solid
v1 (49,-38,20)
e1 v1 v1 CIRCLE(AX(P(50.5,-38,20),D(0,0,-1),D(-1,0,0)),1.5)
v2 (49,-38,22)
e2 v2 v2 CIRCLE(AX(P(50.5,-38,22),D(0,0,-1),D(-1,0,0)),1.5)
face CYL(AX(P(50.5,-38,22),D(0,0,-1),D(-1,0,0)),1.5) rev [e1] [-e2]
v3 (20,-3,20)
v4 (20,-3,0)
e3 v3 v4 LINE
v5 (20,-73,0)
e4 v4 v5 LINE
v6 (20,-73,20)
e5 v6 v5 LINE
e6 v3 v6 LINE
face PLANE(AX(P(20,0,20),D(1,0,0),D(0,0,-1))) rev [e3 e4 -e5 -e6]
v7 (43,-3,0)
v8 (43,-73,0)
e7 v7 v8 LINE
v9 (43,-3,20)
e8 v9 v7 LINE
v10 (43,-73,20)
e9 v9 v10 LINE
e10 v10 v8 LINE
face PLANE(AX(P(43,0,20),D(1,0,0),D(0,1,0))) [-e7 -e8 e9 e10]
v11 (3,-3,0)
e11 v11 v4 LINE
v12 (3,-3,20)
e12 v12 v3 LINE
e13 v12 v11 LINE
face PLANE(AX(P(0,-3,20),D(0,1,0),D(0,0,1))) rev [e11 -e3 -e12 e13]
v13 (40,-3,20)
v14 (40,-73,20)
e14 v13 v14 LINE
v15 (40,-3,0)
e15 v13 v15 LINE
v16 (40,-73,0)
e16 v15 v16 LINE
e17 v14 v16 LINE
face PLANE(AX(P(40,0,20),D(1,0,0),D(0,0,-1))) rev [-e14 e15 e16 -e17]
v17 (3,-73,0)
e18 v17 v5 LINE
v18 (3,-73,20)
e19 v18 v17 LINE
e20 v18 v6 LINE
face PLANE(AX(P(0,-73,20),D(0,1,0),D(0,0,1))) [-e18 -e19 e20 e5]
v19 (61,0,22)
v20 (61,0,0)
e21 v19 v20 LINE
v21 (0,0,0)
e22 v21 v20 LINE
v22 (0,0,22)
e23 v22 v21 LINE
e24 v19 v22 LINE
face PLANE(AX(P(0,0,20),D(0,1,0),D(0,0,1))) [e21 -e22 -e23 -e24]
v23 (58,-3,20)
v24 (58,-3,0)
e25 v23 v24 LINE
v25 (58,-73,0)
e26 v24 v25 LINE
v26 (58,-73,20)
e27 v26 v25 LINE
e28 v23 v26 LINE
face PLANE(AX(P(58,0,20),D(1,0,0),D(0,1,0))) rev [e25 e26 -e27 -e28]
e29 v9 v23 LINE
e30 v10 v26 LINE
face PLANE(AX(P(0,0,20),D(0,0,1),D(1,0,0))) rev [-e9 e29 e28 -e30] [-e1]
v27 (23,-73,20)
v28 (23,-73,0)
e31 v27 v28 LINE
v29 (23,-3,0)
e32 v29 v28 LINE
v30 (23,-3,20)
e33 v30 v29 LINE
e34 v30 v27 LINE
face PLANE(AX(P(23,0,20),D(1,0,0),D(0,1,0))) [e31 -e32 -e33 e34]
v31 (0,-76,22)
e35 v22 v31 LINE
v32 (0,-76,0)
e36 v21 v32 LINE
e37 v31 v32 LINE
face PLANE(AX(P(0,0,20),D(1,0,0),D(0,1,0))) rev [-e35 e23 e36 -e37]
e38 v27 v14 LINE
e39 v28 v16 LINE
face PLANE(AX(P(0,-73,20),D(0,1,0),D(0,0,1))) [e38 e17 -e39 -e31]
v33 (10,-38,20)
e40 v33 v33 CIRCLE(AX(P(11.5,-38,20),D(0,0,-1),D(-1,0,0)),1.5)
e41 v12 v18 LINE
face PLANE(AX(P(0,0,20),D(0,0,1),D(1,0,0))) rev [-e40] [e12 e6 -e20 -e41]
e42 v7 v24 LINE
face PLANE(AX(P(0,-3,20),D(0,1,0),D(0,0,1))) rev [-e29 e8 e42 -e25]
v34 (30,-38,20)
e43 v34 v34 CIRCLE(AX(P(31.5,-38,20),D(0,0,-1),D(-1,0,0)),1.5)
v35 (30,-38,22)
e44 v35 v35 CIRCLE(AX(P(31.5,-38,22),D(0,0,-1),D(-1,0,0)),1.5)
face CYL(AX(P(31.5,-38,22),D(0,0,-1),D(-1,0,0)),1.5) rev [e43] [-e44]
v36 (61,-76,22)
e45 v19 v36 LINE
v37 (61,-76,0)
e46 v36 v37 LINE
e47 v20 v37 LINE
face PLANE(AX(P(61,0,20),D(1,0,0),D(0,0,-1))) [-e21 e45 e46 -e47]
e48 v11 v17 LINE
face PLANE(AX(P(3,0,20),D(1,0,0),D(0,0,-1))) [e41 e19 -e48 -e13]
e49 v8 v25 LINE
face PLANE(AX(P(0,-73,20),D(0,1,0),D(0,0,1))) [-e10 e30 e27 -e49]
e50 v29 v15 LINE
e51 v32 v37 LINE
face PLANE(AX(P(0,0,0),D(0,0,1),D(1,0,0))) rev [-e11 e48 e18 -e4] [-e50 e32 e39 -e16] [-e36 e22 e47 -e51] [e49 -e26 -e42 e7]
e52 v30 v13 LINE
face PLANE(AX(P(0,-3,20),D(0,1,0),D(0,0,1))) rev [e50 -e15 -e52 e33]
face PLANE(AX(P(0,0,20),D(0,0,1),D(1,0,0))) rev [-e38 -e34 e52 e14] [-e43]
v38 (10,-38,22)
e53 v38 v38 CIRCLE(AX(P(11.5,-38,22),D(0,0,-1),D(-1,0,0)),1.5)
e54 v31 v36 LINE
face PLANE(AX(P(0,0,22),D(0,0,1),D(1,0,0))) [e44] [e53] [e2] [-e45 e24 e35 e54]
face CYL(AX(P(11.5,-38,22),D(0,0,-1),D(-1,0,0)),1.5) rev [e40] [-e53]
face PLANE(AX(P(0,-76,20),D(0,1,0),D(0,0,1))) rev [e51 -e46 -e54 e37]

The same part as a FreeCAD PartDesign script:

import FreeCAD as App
import Part
import Sketcher

V = App.Vector


def add_polygon(sketch, points):
    """Adds a closed chain of lines whose ends are joined by coincident constraints."""
    first, n = sketch.GeometryCount, len(points)
    for a, b in zip(points, points[1:] + points[:1]):
        sketch.addGeometry(Part.LineSegment(App.Vector(*a, 0), App.Vector(*b, 0)), False)
    for i in range(n):
        sketch.addConstraint(Sketcher.Constraint("Coincident", first + i, 2, first + (i + 1) % n, 1))

doc = App.newDocument("Part")
params = doc.addObject("Spreadsheet::Sheet", "Params")
for row, (alias, value) in enumerate([
    ("sketch1_width", "81 mm"),
    ("sketch1_width2", "17 mm"),
    ("sketch1_width3", "15 mm"),
    ("sketch1_height", "76 mm"),
    ("sketch1_height2", "70 mm"),
    ("pad1_length", "20 mm"),
    ("sketch2_width", "81 mm"),
    ("sketch2_height", "76 mm"),
    ("pad2_length", "2 mm"),
    ("sketch3_diameter", "3 mm"),
    ("pocket1_length", "2 mm"),
    ("sketch4_diameter", "3 mm"),
], start=1):
    params.set(f"A{row}", alias)
    params.set(f"B{row}", "=" + value)
    params.setAlias(f"B{row}", alias)

body = doc.addObject("PartDesign::Body", "Body")

# Sketch on XY plane
sketch1 = body.newObject("Sketcher::SketchObject", "Sketch")
sketch1.AttachmentSupport = (doc.getObject("XY_Plane"), [""])
sketch1.MapMode = "FlatFace"
add_polygon(sketch1, [(0, 0), (0, -76), (81, -76), (81, 0)])  # lines 0-3
add_polygon(sketch1, [(20, -73), (3, -73), (3, -3), (20, -3)])  # lines 4-7
add_polygon(sketch1, [(40, -73), (23, -73), (23, -3), (40, -3)])  # lines 8-11
add_polygon(sketch1, [(58, -73), (43, -73), (43, -3), (58, -3)])  # lines 12-15
add_polygon(sketch1, [(78, -73), (61, -73), (61, -3), (78, -3)])  # lines 16-19
sketch1.addConstraint([
    Sketcher.Constraint("Vertical", 0),
    Sketcher.Constraint("Horizontal", 1),
    Sketcher.Constraint("Vertical", 2),
    Sketcher.Constraint("Horizontal", 3),
    Sketcher.Constraint("Horizontal", 4),
    Sketcher.Constraint("Vertical", 5),
    Sketcher.Constraint("Horizontal", 6),
    Sketcher.Constraint("Vertical", 7),
    Sketcher.Constraint("Horizontal", 8),
    Sketcher.Constraint("Vertical", 9),
    Sketcher.Constraint("Horizontal", 10),
    Sketcher.Constraint("Vertical", 11),
    Sketcher.Constraint("Horizontal", 12),
    Sketcher.Constraint("Vertical", 13),
    Sketcher.Constraint("Horizontal", 14),
    Sketcher.Constraint("Vertical", 15),
    Sketcher.Constraint("Horizontal", 16),
    Sketcher.Constraint("Vertical", 17),
    Sketcher.Constraint("Horizontal", 18),
    Sketcher.Constraint("Vertical", 19),
    Sketcher.Constraint("Coincident", 3, 2, -1, 1),
    Sketcher.Constraint("Horizontal", 7, 2, 8, 2),
    Sketcher.Constraint("Horizontal", 6, 2, 9, 2),
    Sketcher.Constraint("Horizontal", 11, 2, 12, 2),
    Sketcher.Constraint("Horizontal", 10, 2, 13, 2),
    Sketcher.Constraint("Horizontal", 15, 2, 16, 2),
    Sketcher.Constraint("Horizontal", 14, 2, 17, 2),
    Sketcher.Constraint("Equal", 6, 8),
    Sketcher.Constraint("Equal", 10, 16),
    Sketcher.Constraint("DistanceX", 1, 1, 1, 2, 81.0),
    Sketcher.Constraint("DistanceX", 4, 2, 4, 1, 17.0),
    Sketcher.Constraint("DistanceX", 12, 2, 12, 1, 15.0),
    Sketcher.Constraint("DistanceY", 0, 2, 0, 1, 76.0),
    Sketcher.Constraint("DistanceY", 5, 1, 5, 2, 70.0),
    Sketcher.Constraint("DistanceX", -1, 1, 4, 2, 3.0),
    Sketcher.Constraint("DistanceY", 4, 2, -1, 1, 73.0),
    Sketcher.Constraint("DistanceX", -1, 1, 8, 2, 23.0),
    Sketcher.Constraint("DistanceX", -1, 1, 12, 2, 43.0),
    Sketcher.Constraint("DistanceX", -1, 1, 16, 2, 61.0),
])
sketch1.setExpression("Constraints[49]", "Params.sketch1_width")
sketch1.setExpression("Constraints[50]", "Params.sketch1_width2")
sketch1.setExpression("Constraints[51]", "Params.sketch1_width3")
sketch1.setExpression("Constraints[52]", "Params.sketch1_height")
sketch1.setExpression("Constraints[53]", "Params.sketch1_height2")
pad1 = body.newObject("PartDesign::Pad", "Pad")
pad1.Profile = sketch1
pad1.setExpression("Length", "Params.pad1_length")

# Sketch on XY plane
sketch2 = body.newObject("Sketcher::SketchObject", "Sketch001")
sketch2.AttachmentSupport = (doc.getObject("XY_Plane"), [""])
sketch2.MapMode = "FlatFace"
sketch2.AttachmentOffset = App.Placement(V(0, 0, 20), App.Rotation())
add_polygon(sketch2, [(0, 0), (0, -76), (81, -76), (81, 0)])  # lines 0-3
sketch2.addConstraint([
    Sketcher.Constraint("Vertical", 0),
    Sketcher.Constraint("Horizontal", 1),
    Sketcher.Constraint("Vertical", 2),
    Sketcher.Constraint("Horizontal", 3),
    Sketcher.Constraint("Coincident", 3, 2, -1, 1),
    Sketcher.Constraint("DistanceX", 1, 1, 1, 2, 81.0),
    Sketcher.Constraint("DistanceY", 0, 2, 0, 1, 76.0),
])
sketch2.setExpression("Constraints[9]", "Params.sketch2_width")
sketch2.setExpression("Constraints[10]", "Params.sketch2_height")
pad2 = body.newObject("PartDesign::Pad", "Pad001")
pad2.Profile = sketch2
pad2.setExpression("Length", "Params.pad2_length")

# Sketch on XY plane
sketch3 = body.newObject("Sketcher::SketchObject", "Sketch002")
sketch3.AttachmentSupport = (doc.getObject("XY_Plane"), [""])
sketch3.MapMode = "FlatFace"
sketch3.AttachmentOffset = App.Placement(V(0, 0, 20), App.Rotation())
sketch3.addGeometry([
    Part.Circle(V(11.5, -38, 0), V(0, 0, 1), 1.5),
    Part.Circle(V(31.5, -38, 0), V(0, 0, 1), 1.5),
    Part.Circle(V(50.5, -38, 0), V(0, 0, 1), 1.5),
    Part.Circle(V(69.5, -38, 0), V(0, 0, 1), 1.5),
], False)
sketch3.addConstraint([
    Sketcher.Constraint("Equal", 0, 1),
    Sketcher.Constraint("Equal", 1, 2),
    Sketcher.Constraint("Equal", 2, 3),
    Sketcher.Constraint("Horizontal", 0, 3, 1, 3),
    Sketcher.Constraint("Horizontal", 1, 3, 2, 3),
    Sketcher.Constraint("Horizontal", 2, 3, 3, 3),
    Sketcher.Constraint("Diameter", 0, 3.0),
    Sketcher.Constraint("DistanceY", 0, 3, -1, 1, 38.0),
    Sketcher.Constraint("DistanceX", 0, 3, 1, 3, 20.0),
    Sketcher.Constraint("DistanceX", 1, 3, 2, 3, 19.0),
    Sketcher.Constraint("DistanceX", 2, 3, 3, 3, 19.0),
    Sketcher.Constraint("DistanceX", -1, 1, 0, 3, 11.5),
])
sketch3.setExpression("Constraints[6]", "Params.sketch3_diameter")
pocket1 = body.newObject("PartDesign::Pocket", "Pocket")
pocket1.Profile = sketch3
pocket1.setExpression("Length", "Params.pocket1_length")
pocket1.Reversed = True

# Sketch on XY plane
sketch4 = body.newObject("Sketcher::SketchObject", "Sketch003")
sketch4.AttachmentSupport = (doc.getObject("XY_Plane"), [""])
sketch4.MapMode = "FlatFace"
sketch4.AttachmentOffset = App.Placement(V(0, 0, 20), App.Rotation())
add_polygon(sketch4, [(61, -79.1), (61, 3.6), (91.3, 3.6), (89.8, -78.4)])  # lines 0-3
sketch4.addGeometry(Part.Circle(V(69.5, -38, 0), V(0, 0, 1), 1.5), False)  # 4
sketch4.addConstraint([
    Sketcher.Constraint("Vertical", 0),
    Sketcher.Constraint("Horizontal", 1),
    Sketcher.Constraint("Diameter", 4, 3.0),
    Sketcher.Constraint("DistanceY", 4, 3, -1, 1, 38.0),
    Sketcher.Constraint("DistanceX", -1, 1, 0, 2, 61.0),
    Sketcher.Constraint("DistanceX", -1, 1, 4, 3, 69.5),
    Sketcher.Constraint("DistanceX", 1, 1, 1, 2, 30.298539),
    Sketcher.Constraint("DistanceY", 2, 2, 1, 2, 82.0143),
    Sketcher.Constraint("Distance", 3, 28.809779),
    Sketcher.Constraint("DistanceY", 0, 1, 0, 2, 82.711284),
    Sketcher.Constraint("DistanceY", 3, 2, -1, 1, 79.12526),
])
sketch4.setExpression("Constraints[6]", "Params.sketch4_diameter")
pocket2 = body.newObject("PartDesign::Pocket", "Pocket001")
pocket2.Profile = sketch4
pocket2.Type = "ThroughAll"
pocket2.Midplane = True

doc.recompute()
